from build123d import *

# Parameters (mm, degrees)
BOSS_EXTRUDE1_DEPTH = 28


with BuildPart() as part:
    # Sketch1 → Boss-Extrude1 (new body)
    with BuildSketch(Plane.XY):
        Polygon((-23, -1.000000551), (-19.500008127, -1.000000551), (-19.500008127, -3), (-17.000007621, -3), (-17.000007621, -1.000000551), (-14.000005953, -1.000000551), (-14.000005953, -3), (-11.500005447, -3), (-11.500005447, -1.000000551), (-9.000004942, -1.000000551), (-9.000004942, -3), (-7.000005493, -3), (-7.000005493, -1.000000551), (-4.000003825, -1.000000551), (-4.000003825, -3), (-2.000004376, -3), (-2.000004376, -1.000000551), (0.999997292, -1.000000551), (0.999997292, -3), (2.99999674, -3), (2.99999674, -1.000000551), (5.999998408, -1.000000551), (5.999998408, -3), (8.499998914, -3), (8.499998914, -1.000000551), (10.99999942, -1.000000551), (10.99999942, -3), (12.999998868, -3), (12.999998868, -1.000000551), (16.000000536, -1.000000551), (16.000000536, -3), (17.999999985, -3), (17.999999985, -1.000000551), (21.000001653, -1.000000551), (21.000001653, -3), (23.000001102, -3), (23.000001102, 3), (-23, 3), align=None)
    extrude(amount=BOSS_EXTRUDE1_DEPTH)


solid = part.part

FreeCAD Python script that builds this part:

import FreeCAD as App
import Part
import Sketcher
Q = App.Units.Quantity

doc = App.newDocument("Part")
params = doc.addObject("Spreadsheet::Sheet", "Params")
for row, (alias, value) in enumerate([
    ("sketch1_width", "3.000002 mm"),
    ("sketch1_width2", "1.999999 mm"),
    ("sketch1_width3", "46.000001 mm"),
    ("sketch1_height", "6 mm"),
    ("sketch1_width4", "2.500001 mm"),
    ("pad1_length", "28 mm"),
], start=1):
    params.set(f"A{row}", alias)
    params.set(f"B{row}", "=" + value)
    params.setAlias(f"B{row}", alias)

body = doc.addObject("PartDesign::Body", "Body")

# Sketch on XY plane
sketch1 = doc.addObject("Sketcher::SketchObject", "Sketch")
body.addObject(sketch1)
sketch1.AttachmentSupport = (doc.XY_Plane, [""])
sketch1.MapMode = "FlatFace"
sketch1.addGeometry(Part.LineSegment(App.Vector(-23, -1, 0), App.Vector(-19.5, -1, 0)), False)
sketch1.addGeometry(Part.LineSegment(App.Vector(-19.5, -1, 0), App.Vector(-19.5, -3, 0)), False)
sketch1.addGeometry(Part.LineSegment(App.Vector(-19.5, -3, 0), App.Vector(-17, -3, 0)), False)
sketch1.addGeometry(Part.LineSegment(App.Vector(-17, -3, 0), App.Vector(-17, -1, 0)), False)
sketch1.addGeometry(Part.LineSegment(App.Vector(-17, -1, 0), App.Vector(-14, -1, 0)), False)
sketch1.addGeometry(Part.LineSegment(App.Vector(-14, -1, 0), App.Vector(-14, -3, 0)), False)
sketch1.addGeometry(Part.LineSegment(App.Vector(-14, -3, 0), App.Vector(-11.5, -3, 0)), False)
sketch1.addGeometry(Part.LineSegment(App.Vector(-11.5, -3, 0), App.Vector(-11.5, -1, 0)), False)
sketch1.addGeometry(Part.LineSegment(App.Vector(-11.5, -1, 0), App.Vector(-9, -1, 0)), False)
sketch1.addGeometry(Part.LineSegment(App.Vector(-9, -1, 0), App.Vector(-9, -3, 0)), False)
sketch1.addGeometry(Part.LineSegment(App.Vector(-9, -3, 0), App.Vector(-7, -3, 0)), False)
sketch1.addGeometry(Part.LineSegment(App.Vector(-7, -3, 0), App.Vector(-7, -1, 0)), False)
sketch1.addGeometry(Part.LineSegment(App.Vector(-7, -1, 0), App.Vector(-4, -1, 0)), False)
sketch1.addGeometry(Part.LineSegment(App.Vector(-4, -1, 0), App.Vector(-4, -3, 0)), False)
sketch1.addGeometry(Part.LineSegment(App.Vector(-4, -3, 0), App.Vector(-2, -3, 0)), False)
sketch1.addGeometry(Part.LineSegment(App.Vector(-2, -3, 0), App.Vector(-2, -1, 0)), False)
sketch1.addGeometry(Part.LineSegment(App.Vector(-2, -1, 0), App.Vector(1, -1, 0)), False)
sketch1.addGeometry(Part.LineSegment(App.Vector(1, -1, 0), App.Vector(1, -3, 0)), False)
sketch1.addGeometry(Part.LineSegment(App.Vector(1, -3, 0), App.Vector(3, -3, 0)), False)
sketch1.addGeometry(Part.LineSegment(App.Vector(3, -3, 0), App.Vector(3, -1, 0)), False)
sketch1.addGeometry(Part.LineSegment(App.Vector(3, -1, 0), App.Vector(6, -1, 0)), False)
sketch1.addGeometry(Part.LineSegment(App.Vector(6, -1, 0), App.Vector(6, -3, 0)), False)
sketch1.addGeometry(Part.LineSegment(App.Vector(6, -3, 0), App.Vector(8.5, -3, 0)), False)
sketch1.addGeometry(Part.LineSegment(App.Vector(8.5, -3, 0), App.Vector(8.5, -1, 0)), False)
sketch1.addGeometry(Part.LineSegment(App.Vector(8.5, -1, 0), App.Vector(11, -1, 0)), False)
sketch1.addGeometry(Part.LineSegment(App.Vector(11, -1, 0), App.Vector(11, -3, 0)), False)
sketch1.addGeometry(Part.LineSegment(App.Vector(11, -3, 0), App.Vector(13, -3, 0)), False)
sketch1.addGeometry(Part.LineSegment(App.Vector(13, -3, 0), App.Vector(13, -1, 0)), False)
sketch1.addGeometry(Part.LineSegment(App.Vector(13, -1, 0), App.Vector(16, -1, 0)), False)
sketch1.addGeometry(Part.LineSegment(App.Vector(16, -1, 0), App.Vector(16, -3, 0)), False)
sketch1.addGeometry(Part.LineSegment(App.Vector(16, -3, 0), App.Vector(18, -3, 0)), False)
sketch1.addGeometry(Part.LineSegment(App.Vector(18, -3, 0), App.Vector(18, -1, 0)), False)
sketch1.addGeometry(Part.LineSegment(App.Vector(18, -1, 0), App.Vector(21, -1, 0)), False)
sketch1.addGeometry(Part.LineSegment(App.Vector(21, -1, 0), App.Vector(21, -3, 0)), False)
sketch1.addGeometry(Part.LineSegment(App.Vector(21, -3, 0), App.Vector(23, -3, 0)), False)
sketch1.addGeometry(Part.LineSegment(App.Vector(23, -3, 0), App.Vector(23, 3, 0)), False)
sketch1.addGeometry(Part.LineSegment(App.Vector(23, 3, 0), App.Vector(-23, 3, 0)), False)
sketch1.addGeometry(Part.LineSegment(App.Vector(-23, 3, 0), App.Vector(-23, -1, 0)), False)
sketch1.addConstraint(Sketcher.Constraint("Coincident", 0, 2, 1, 1))
sketch1.addConstraint(Sketcher.Constraint("Coincident", 1, 2, 2, 1))
sketch1.addConstraint(Sketcher.Constraint("Coincident", 2, 2, 3, 1))
sketch1.addConstraint(Sketcher.Constraint("Coincident", 3, 2, 4, 1))
sketch1.addConstraint(Sketcher.Constraint("Coincident", 4, 2, 5, 1))
sketch1.addConstraint(Sketcher.Constraint("Coincident", 5, 2, 6, 1))
sketch1.addConstraint(Sketcher.Constraint("Coincident", 6, 2, 7, 1))
sketch1.addConstraint(Sketcher.Constraint("Coincident", 7, 2, 8, 1))
sketch1.addConstraint(Sketcher.Constraint("Coincident", 8, 2, 9, 1))
sketch1.addConstraint(Sketcher.Constraint("Coincident", 9, 2, 10, 1))
sketch1.addConstraint(Sketcher.Constraint("Coincident", 10, 2, 11, 1))
sketch1.addConstraint(Sketcher.Constraint("Coincident", 11, 2, 12, 1))
sketch1.addConstraint(Sketcher.Constraint("Coincident", 12, 2, 13, 1))
sketch1.addConstraint(Sketcher.Constraint("Coincident", 13, 2, 14, 1))
sketch1.addConstraint(Sketcher.Constraint("Coincident", 14, 2, 15, 1))
sketch1.addConstraint(Sketcher.Constraint("Coincident", 15, 2, 16, 1))
sketch1.addConstraint(Sketcher.Constraint("Coincident", 16, 2, 17, 1))
sketch1.addConstraint(Sketcher.Constraint("Coincident", 17, 2, 18, 1))
sketch1.addConstraint(Sketcher.Constraint("Coincident", 18, 2, 19, 1))
sketch1.addConstraint(Sketcher.Constraint("Coincident", 19, 2, 20, 1))
sketch1.addConstraint(Sketcher.Constraint("Coincident", 20, 2, 21, 1))
sketch1.addConstraint(Sketcher.Constraint("Coincident", 21, 2, 22, 1))
sketch1.addConstraint(Sketcher.Constraint("Coincident", 22, 2, 23, 1))
sketch1.addConstraint(Sketcher.Constraint("Coincident", 23, 2, 24, 1))
sketch1.addConstraint(Sketcher.Constraint("Coincident", 24, 2, 25, 1))
sketch1.addConstraint(Sketcher.Constraint("Coincident", 25, 2, 26, 1))
sketch1.addConstraint(Sketcher.Constraint("Coincident", 26, 2, 27, 1))
sketch1.addConstraint(Sketcher.Constraint("Coincident", 27, 2, 28, 1))
sketch1.addConstraint(Sketcher.Constraint("Coincident", 28, 2, 29, 1))
sketch1.addConstraint(Sketcher.Constraint("Coincident", 29, 2, 30, 1))
sketch1.addConstraint(Sketcher.Constraint("Coincident", 30, 2, 31, 1))
sketch1.addConstraint(Sketcher.Constraint("Coincident", 31, 2, 32, 1))
sketch1.addConstraint(Sketcher.Constraint("Coincident", 32, 2, 33, 1))
sketch1.addConstraint(Sketcher.Constraint("Coincident", 33, 2, 34, 1))
sketch1.addConstraint(Sketcher.Constraint("Coincident", 34, 2, 35, 1))
sketch1.addConstraint(Sketcher.Constraint("Coincident", 35, 2, 36, 1))
sketch1.addConstraint(Sketcher.Constraint("Coincident", 36, 2, 37, 1))
sketch1.addConstraint(Sketcher.Constraint("Coincident", 37, 2, 0, 1))
sketch1.addConstraint(Sketcher.Constraint("Horizontal", 0))
sketch1.addConstraint(Sketcher.Constraint("Vertical", 1))
sketch1.addConstraint(Sketcher.Constraint("Horizontal", 2))
sketch1.addConstraint(Sketcher.Constraint("Vertical", 3))
sketch1.addConstraint(Sketcher.Constraint("Horizontal", 4))
sketch1.addConstraint(Sketcher.Constraint("Vertical", 5))
sketch1.addConstraint(Sketcher.Constraint("Horizontal", 6))
sketch1.addConstraint(Sketcher.Constraint("Vertical", 7))
sketch1.addConstraint(Sketcher.Constraint("Horizontal", 8))
sketch1.addConstraint(Sketcher.Constraint("Vertical", 9))
sketch1.addConstraint(Sketcher.Constraint("Horizontal", 10))
sketch1.addConstraint(Sketcher.Constraint("Vertical", 11))
sketch1.addConstraint(Sketcher.Constraint("Horizontal", 12))
sketch1.addConstraint(Sketcher.Constraint("Vertical", 13))
sketch1.addConstraint(Sketcher.Constraint("Horizontal", 14))
sketch1.addConstraint(Sketcher.Constraint("Vertical", 15))
sketch1.addConstraint(Sketcher.Constraint("Horizontal", 16))
sketch1.addConstraint(Sketcher.Constraint("Vertical", 17))
sketch1.addConstraint(Sketcher.Constraint("Horizontal", 18))
sketch1.addConstraint(Sketcher.Constraint("Vertical", 19))
sketch1.addConstraint(Sketcher.Constraint("Horizontal", 20))
sketch1.addConstraint(Sketcher.Constraint("Vertical", 21))
sketch1.addConstraint(Sketcher.Constraint("Horizontal", 22))
sketch1.addConstraint(Sketcher.Constraint("Vertical", 23))
sketch1.addConstraint(Sketcher.Constraint("Horizontal", 24))
sketch1.addConstraint(Sketcher.Constraint("Vertical", 25))
sketch1.addConstraint(Sketcher.Constraint("Horizontal", 26))
sketch1.addConstraint(Sketcher.Constraint("Vertical", 27))
sketch1.addConstraint(Sketcher.Constraint("Horizontal", 28))
sketch1.addConstraint(Sketcher.Constraint("Vertical", 29))
sketch1.addConstraint(Sketcher.Constraint("Horizontal", 30))
sketch1.addConstraint(Sketcher.Constraint("Vertical", 31))
sketch1.addConstraint(Sketcher.Constraint("Horizontal", 32))
sketch1.addConstraint(Sketcher.Constraint("Vertical", 33))
sketch1.addConstraint(Sketcher.Constraint("Horizontal", 34))
sketch1.addConstraint(Sketcher.Constraint("Vertical", 35))
sketch1.addConstraint(Sketcher.Constraint("Horizontal", 36))
sketch1.addConstraint(Sketcher.Constraint("Vertical", 37))
sketch1.addConstraint(Sketcher.Constraint("Symmetric", 34, 2, 36, 2, -1, 1))
sketch1.addConstraint(Sketcher.Constraint("Horizontal", 0, 2, 3, 2))
sketch1.addConstraint(Sketcher.Constraint("Horizontal", 2, 2, 5, 2))
sketch1.addConstraint(Sketcher.Constraint("Horizontal", 4, 2, 7, 2))
sketch1.addConstraint(Sketcher.Constraint("Horizontal", 6, 2, 9, 2))
sketch1.addConstraint(Sketcher.Constraint("Horizontal", 8, 2, 11, 2))
sketch1.addConstraint(Sketcher.Constraint("Horizontal", 10, 2, 13, 2))
sketch1.addConstraint(Sketcher.Constraint("Horizontal", 12, 2, 15, 2))
sketch1.addConstraint(Sketcher.Constraint("Horizontal", 14, 2, 17, 2))
sketch1.addConstraint(Sketcher.Constraint("Horizontal", 16, 2, 19, 2))
sketch1.addConstraint(Sketcher.Constraint("Horizontal", 18, 2, 21, 2))
sketch1.addConstraint(Sketcher.Constraint("Horizontal", 20, 2, 23, 2))
sketch1.addConstraint(Sketcher.Constraint("Horizontal", 22, 2, 25, 2))
sketch1.addConstraint(Sketcher.Constraint("Horizontal", 24, 2, 27, 2))
sketch1.addConstraint(Sketcher.Constraint("Horizontal", 26, 2, 29, 2))
sketch1.addConstraint(Sketcher.Constraint("Horizontal", 28, 2, 31, 2))
sketch1.addConstraint(Sketcher.Constraint("Horizontal", 30, 2, 33, 2))
sketch1.addConstraint(Sketcher.Constraint("Equal", 2, 6))
sketch1.addConstraint(Sketcher.Constraint("Equal", 6, 8))
sketch1.addConstraint(Sketcher.Constraint("Equal", 4, 12))
sketch1.addConstraint(Sketcher.Constraint("Equal", 10, 14))
sketch1.addConstraint(Sketcher.Constraint("Equal", 12, 16))
sketch1.addConstraint(Sketcher.Constraint("Equal", 14, 18))
sketch1.addConstraint(Sketcher.Constraint("Equal", 16, 20))
sketch1.addConstraint(Sketcher.Constraint("Equal", 8, 22))
sketch1.addConstraint(Sketcher.Constraint("Equal", 22, 24))
sketch1.addConstraint(Sketcher.Constraint("Equal", 18, 26))
sketch1.addConstraint(Sketcher.Constraint("Equal", 20, 28))
sketch1.addConstraint(Sketcher.Constraint("Equal", 26, 30))
sketch1.addConstraint(Sketcher.Constraint("Equal", 28, 32))
sketch1.addConstraint(Sketcher.Constraint("Equal", 30, 34))
sketch1.addConstraint(Sketcher.Constraint("Equal", 34, 1))
sketch1.addConstraint(Sketcher.Constraint("DistanceX", 4, 1, 4, 2, Q("3.000002 mm")))
sketch1.addConstraint(Sketcher.Constraint("DistanceX", 10, 1, 10, 2, Q("1.999999 mm")))
sketch1.addConstraint(Sketcher.Constraint("DistanceX", 36, 2, 36, 1, Q("46.000001 mm")))
sketch1.addConstraint(Sketcher.Constraint("DistanceY", 35, 1, 35, 2, Q("6 mm")))
sketch1.addConstraint(Sketcher.Constraint("DistanceX", 2, 1, 2, 2, Q("2.500001 mm")))
sketch1.setExpression("Constraints[108]", "Params.sketch1_width")
sketch1.setExpression("Constraints[109]", "Params.sketch1_width2")
sketch1.setExpression("Constraints[110]", "Params.sketch1_width3")
sketch1.setExpression("Constraints[111]", "Params.sketch1_height")
sketch1.setExpression("Constraints[112]", "Params.sketch1_width4")
pad1 = doc.addObject("PartDesign::Pad", "Pad")
body.addObject(pad1)
pad1.Profile = sketch1
pad1.setExpression("Length", "Params.pad1_length")

doc.recompute()
